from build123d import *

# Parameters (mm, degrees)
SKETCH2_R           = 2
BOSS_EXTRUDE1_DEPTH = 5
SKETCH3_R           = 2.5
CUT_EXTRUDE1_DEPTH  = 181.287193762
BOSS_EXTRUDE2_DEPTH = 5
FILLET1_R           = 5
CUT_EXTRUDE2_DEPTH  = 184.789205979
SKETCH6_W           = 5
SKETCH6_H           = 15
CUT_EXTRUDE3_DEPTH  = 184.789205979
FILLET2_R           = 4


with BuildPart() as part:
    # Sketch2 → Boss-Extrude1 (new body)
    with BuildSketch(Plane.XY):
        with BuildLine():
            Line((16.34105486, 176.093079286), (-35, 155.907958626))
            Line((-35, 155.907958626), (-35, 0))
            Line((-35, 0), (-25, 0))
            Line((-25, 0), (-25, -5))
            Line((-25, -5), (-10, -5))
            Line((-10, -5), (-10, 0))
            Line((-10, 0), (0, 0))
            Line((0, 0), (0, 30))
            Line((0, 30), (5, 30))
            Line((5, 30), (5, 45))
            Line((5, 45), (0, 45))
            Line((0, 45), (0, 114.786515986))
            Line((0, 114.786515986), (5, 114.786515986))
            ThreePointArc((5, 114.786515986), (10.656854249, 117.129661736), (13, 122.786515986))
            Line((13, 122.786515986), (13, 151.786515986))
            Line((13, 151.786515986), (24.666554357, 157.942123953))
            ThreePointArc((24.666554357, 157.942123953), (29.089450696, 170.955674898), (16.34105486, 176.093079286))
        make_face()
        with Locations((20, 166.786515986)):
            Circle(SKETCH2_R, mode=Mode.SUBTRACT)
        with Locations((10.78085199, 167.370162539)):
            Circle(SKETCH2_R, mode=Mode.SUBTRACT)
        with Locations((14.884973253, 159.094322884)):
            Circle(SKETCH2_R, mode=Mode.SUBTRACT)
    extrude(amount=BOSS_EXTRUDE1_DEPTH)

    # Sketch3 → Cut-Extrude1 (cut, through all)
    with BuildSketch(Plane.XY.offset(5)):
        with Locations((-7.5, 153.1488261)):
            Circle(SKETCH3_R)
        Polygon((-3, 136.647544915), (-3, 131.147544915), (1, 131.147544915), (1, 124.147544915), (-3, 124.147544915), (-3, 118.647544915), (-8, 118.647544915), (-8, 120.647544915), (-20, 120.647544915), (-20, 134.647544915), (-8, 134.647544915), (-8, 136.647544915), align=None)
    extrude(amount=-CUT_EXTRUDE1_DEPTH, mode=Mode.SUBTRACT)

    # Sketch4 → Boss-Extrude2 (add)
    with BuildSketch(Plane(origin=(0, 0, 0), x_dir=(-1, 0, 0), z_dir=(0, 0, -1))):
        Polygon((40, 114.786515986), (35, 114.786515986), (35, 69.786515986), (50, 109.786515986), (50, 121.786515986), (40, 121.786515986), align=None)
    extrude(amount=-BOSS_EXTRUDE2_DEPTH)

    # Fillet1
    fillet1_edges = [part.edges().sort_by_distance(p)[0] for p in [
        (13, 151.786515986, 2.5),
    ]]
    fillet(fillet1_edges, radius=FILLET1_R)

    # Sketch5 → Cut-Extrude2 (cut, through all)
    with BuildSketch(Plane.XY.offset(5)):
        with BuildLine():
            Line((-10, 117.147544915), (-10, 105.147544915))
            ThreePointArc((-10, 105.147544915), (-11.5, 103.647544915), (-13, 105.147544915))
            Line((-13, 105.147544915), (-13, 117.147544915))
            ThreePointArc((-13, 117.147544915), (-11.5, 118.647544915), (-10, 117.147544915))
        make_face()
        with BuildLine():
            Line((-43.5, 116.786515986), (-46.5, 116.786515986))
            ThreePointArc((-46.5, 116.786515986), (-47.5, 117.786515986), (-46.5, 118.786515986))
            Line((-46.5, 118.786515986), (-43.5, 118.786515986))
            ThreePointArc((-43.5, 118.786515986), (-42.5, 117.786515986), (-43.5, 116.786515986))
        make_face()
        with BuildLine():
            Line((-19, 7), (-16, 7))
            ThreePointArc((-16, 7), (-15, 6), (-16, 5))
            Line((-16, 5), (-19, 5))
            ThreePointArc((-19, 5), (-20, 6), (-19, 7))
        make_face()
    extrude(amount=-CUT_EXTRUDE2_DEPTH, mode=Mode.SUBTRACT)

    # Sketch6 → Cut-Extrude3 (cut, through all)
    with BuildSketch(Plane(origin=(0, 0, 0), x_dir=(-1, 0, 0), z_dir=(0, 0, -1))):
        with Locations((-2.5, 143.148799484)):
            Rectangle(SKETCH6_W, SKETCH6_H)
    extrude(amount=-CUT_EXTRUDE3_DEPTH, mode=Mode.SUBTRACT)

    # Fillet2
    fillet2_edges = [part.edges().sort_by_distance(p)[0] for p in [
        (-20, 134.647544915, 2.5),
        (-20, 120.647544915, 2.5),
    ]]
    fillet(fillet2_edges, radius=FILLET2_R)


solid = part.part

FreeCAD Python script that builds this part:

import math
import FreeCAD as App
import Part
import Sketcher

V = App.Vector


def edges_at(feature, points):
    """Names of the edges that pass closest to the given points."""
    edges = feature.Shape.Edges
    near = lambda p: min(range(len(edges)), key=lambda i: edges[i].distToShape(Part.Vertex(*p))[0])
    return sorted({f"Edge{near(p) + 1}" for p in points})


def add_polygon(sketch, points):
    """Adds a closed chain of lines whose ends are joined by coincident constraints."""
    first, n = sketch.GeometryCount, len(points)
    for a, b in zip(points, points[1:] + points[:1]):
        sketch.addGeometry(Part.LineSegment(App.Vector(*a, 0), App.Vector(*b, 0)), False)
    for i in range(n):
        sketch.addConstraint(Sketcher.Constraint("Coincident", first + i, 2, first + (i + 1) % n, 1))

doc = App.newDocument("Part")
body = doc.addObject("PartDesign::Body", "Body")

# Sketch on XY plane
sketch1 = body.newObject("Sketcher::SketchObject", "Sketch")
sketch1.AttachmentSupport = (doc.getObject("XY_Plane"), [""])
sketch1.MapMode = "FlatFace"
sketch1.addGeometry([
    Part.LineSegment(V(16.3, 176.1, 0), V(-35, 155.9, 0)),  # 0
    Part.LineSegment(V(-35, 155.9, 0), V(-35, 0, 0)),  # 1
    Part.LineSegment(V(-35, 0, 0), V(-25, 0, 0)),  # 2
    Part.LineSegment(V(-25, 0, 0), V(-25, -5, 0)),  # 3
    Part.LineSegment(V(-25, -5, 0), V(-10, -5, 0)),  # 4
    Part.LineSegment(V(-10, -5, 0), V(-10, 0, 0)),  # 5
    Part.LineSegment(V(-10, 0, 0), V(0, 0, 0)),  # 6
    Part.LineSegment(V(0, 0, 0), V(0, 30, 0)),  # 7
    Part.LineSegment(V(0, 30, 0), V(5, 30, 0)),  # 8
    Part.LineSegment(V(5, 30, 0), V(5, 45, 0)),  # 9
    Part.LineSegment(V(5, 45, 0), V(0, 45, 0)),  # 10
    Part.LineSegment(V(0, 45, 0), V(0, 114.8, 0)),  # 11
    Part.LineSegment(V(0, 114.8, 0), V(5, 114.8, 0)),  # 12
    Part.ArcOfCircle(Part.Circle(V(5, 122.8, 0), V(0, 0, 1), 8), math.radians(-90), math.radians(0)),  # 13
    Part.LineSegment(V(13, 122.8, 0), V(13, 151.8, 0)),  # 14
    Part.LineSegment(V(13, 151.8, 0), V(24.7, 157.9, 0)),  # 15
    Part.ArcOfCircle(Part.Circle(V(20, 166.8, 0), V(0, 0, 1), 10), math.radians(-62), math.radians(111)),  # 16
    Part.Circle(V(14.9, 159.1, 0), V(0, 0, 1), 2),  # 17
    Part.Circle(V(10.8, 167.4, 0), V(0, 0, 1), 2),  # 18
    Part.Circle(V(20, 166.8, 0), V(0, 0, 1), 2),  # 19
], False)
sketch1.addConstraint([
    Sketcher.Constraint("Coincident", 0, 2, 1, 1),
    Sketcher.Constraint("Coincident", 1, 2, 2, 1),
    Sketcher.Constraint("Coincident", 2, 2, 3, 1),
    Sketcher.Constraint("Coincident", 3, 2, 4, 1),
    Sketcher.Constraint("Coincident", 4, 2, 5, 1),
    Sketcher.Constraint("Coincident", 5, 2, 6, 1),
    Sketcher.Constraint("Coincident", 6, 2, 7, 1),
    Sketcher.Constraint("Coincident", 7, 2, 8, 1),
    Sketcher.Constraint("Coincident", 8, 2, 9, 1),
    Sketcher.Constraint("Coincident", 9, 2, 10, 1),
    Sketcher.Constraint("Coincident", 10, 2, 11, 1),
    Sketcher.Constraint("Coincident", 11, 2, 12, 1),
    Sketcher.Constraint("Tangent", 12, 2, 13, 1),
    Sketcher.Constraint("Tangent", 13, 2, 14, 1),
    Sketcher.Constraint("Coincident", 14, 2, 15, 1),
    Sketcher.Constraint("Tangent", 15, 2, 16, 1),
    Sketcher.Constraint("Tangent", 16, 2, 0, 1),
    Sketcher.Constraint("Vertical", 1),
    Sketcher.Constraint("Horizontal", 2),
    Sketcher.Constraint("Vertical", 3),
    Sketcher.Constraint("Horizontal", 4),
    Sketcher.Constraint("Vertical", 5),
    Sketcher.Constraint("Horizontal", 6),
    Sketcher.Constraint("Vertical", 7),
    Sketcher.Constraint("Horizontal", 8),
    Sketcher.Constraint("Vertical", 9),
    Sketcher.Constraint("Horizontal", 10),
    Sketcher.Constraint("Vertical", 11),
    Sketcher.Constraint("Horizontal", 12),
    Sketcher.Constraint("Vertical", 14),
    Sketcher.Constraint("Coincident", 6, 2, -1, 1),
    Sketcher.Constraint("Coincident", 19, 3, 16, 3),
    Sketcher.Constraint("Equal", 17, 18),
    Sketcher.Constraint("Equal", 18, 19),
    Sketcher.Constraint("PointOnObject", 1, 2, -1),
    Sketcher.Constraint("PointOnObject", 10, 2, -2),
    Sketcher.Constraint("Vertical", 13, 3, 8, 2),
    Sketcher.Constraint("Equal", 2, 6),
    Sketcher.Constraint("Equal", 12, 3),
    Sketcher.Constraint("Equal", 4, 9),
    Sketcher.Constraint("Diameter", 17, 4.0),
    Sketcher.Constraint("Radius", 13, 8.0),
    Sketcher.Constraint("Radius", 16, 10.0),
    Sketcher.Constraint("DistanceX", 2, 1, 2, 2, 10.0),
    Sketcher.Constraint("DistanceX", 4, 1, 4, 2, 15.0),
    Sketcher.Constraint("DistanceX", 8, 1, 8, 2, 5.0),
    Sketcher.Constraint("DistanceY", 7, 1, 7, 2, 30.0),
    Sketcher.Constraint("DistanceY", 14, 1, 14, 2, 29.0),
    Sketcher.Constraint("DistanceX", -1, 1, 16, 3, 20.0),
    Sketcher.Constraint("DistanceY", 13, 3, 16, 3, 44.0),
    Sketcher.Constraint("DistanceY", 1, 2, 1, 1, 155.907959),
    Sketcher.Constraint("DistanceY", 15, 2, 17, 3, 1.152199),
    Sketcher.Constraint("DistanceX", 16, 2, 15, 2, 8.325499),
    Sketcher.Constraint("DistanceX", -1, 1, 18, 3, 10.780852),
    Sketcher.Constraint("DistanceX", 18, 3, 17, 3, 4.104121),
    Sketcher.Constraint("DistanceY", 17, 3, 18, 3, 8.27584),
])
pad1 = body.newObject("PartDesign::Pad", "Pad")
pad1.Profile = sketch1
pad1.Length = 5

# Sketch on XY plane
sketch2 = body.newObject("Sketcher::SketchObject", "Sketch001")
sketch2.AttachmentSupport = (doc.getObject("XY_Plane"), [""])
sketch2.MapMode = "FlatFace"
sketch2.AttachmentOffset = App.Placement(V(0, 0, 5), App.Rotation())
sketch2.addGeometry(Part.Circle(V(-7.5, 153.1, 0), V(0, 0, 1), 2.5), False)  # 0
add_polygon(sketch2, [(-3, 131.1), (-3, 136.6), (-8, 136.6), (-8, 134.6), (-20, 134.6), (-20, 120.6), (-8, 120.6), (-8, 118.6), (-3, 118.6), (-3, 124.1), (1, 124.1), (1, 131.1)])  # lines 1-12
sketch2.addConstraint([
    Sketcher.Constraint("Vertical", 1),
    Sketcher.Constraint("Horizontal", 2),
    Sketcher.Constraint("Vertical", 3),
    Sketcher.Constraint("Horizontal", 4),
    Sketcher.Constraint("Vertical", 5),
    Sketcher.Constraint("Horizontal", 6),
    Sketcher.Constraint("Vertical", 7),
    Sketcher.Constraint("Horizontal", 8),
    Sketcher.Constraint("Vertical", 9),
    Sketcher.Constraint("Horizontal", 10),
    Sketcher.Constraint("Vertical", 11),
    Sketcher.Constraint("Horizontal", 12),
    Sketcher.Constraint("Vertical", 3, 2, 6, 2),
    Sketcher.Constraint("Vertical", 1, 2, 8, 2),
    Sketcher.Constraint("Equal", 3, 7),
    Sketcher.Constraint("Equal", 1, 9),
    Sketcher.Constraint("Diameter", 0, 5.0),
    Sketcher.Constraint("DistanceX", 2, 2, 2, 1, 5.0),
    Sketcher.Constraint("DistanceX", 4, 2, 4, 1, 12.0),
    Sketcher.Constraint("DistanceX", 10, 1, 10, 2, 4.0),
    Sketcher.Constraint("DistanceY", 3, 2, 3, 1, 2.0),
    Sketcher.Constraint("DistanceY", 5, 2, 5, 1, 14.0),
    Sketcher.Constraint("DistanceY", 11, 1, 11, 2, 7.0),
    Sketcher.Constraint("DistanceX", 1, 2, -1, 1, 3.0),
    Sketcher.Constraint("DistanceX", 0, 3, -1, 1, 7.5),
    Sketcher.Constraint("DistanceY", 1, 2, 0, 3, 16.501281),
    Sketcher.Constraint("DistanceY", -1, 1, 0, 3, 153.148826),
])
pocket1 = body.newObject("PartDesign::Pocket", "Pocket")
pocket1.Profile = sketch2
pocket1.Type = "ThroughAll"

# Sketch on XY plane
sketch3 = body.newObject("Sketcher::SketchObject", "Sketch002")
sketch3.AttachmentSupport = (doc.getObject("XY_Plane"), [""])
sketch3.MapMode = "FlatFace"
add_polygon(sketch3, [(-40, 115), (-35, 115), (-35, 70), (-50, 110), (-50, 122), (-40, 122)])  # lines 0-5
sketch3.addConstraint([
    Sketcher.Constraint("Horizontal", 0),
    Sketcher.Constraint("Vertical", 1),
    Sketcher.Constraint("Vertical", 3),
    Sketcher.Constraint("Horizontal", 4),
    Sketcher.Constraint("Vertical", 5),
    Sketcher.Constraint("DistanceX", 0, 1, 0, 2, 5.0),
    Sketcher.Constraint("DistanceX", 4, 1, 4, 2, 10.0),
    Sketcher.Constraint("DistanceY", 1, 2, 1, 1, 45.0),
    Sketcher.Constraint("DistanceY", 3, 1, 3, 2, 12.0),
    Sketcher.Constraint("DistanceY", 5, 2, 5, 1, 7.0),
    Sketcher.Constraint("DistanceX", 0, 2, -1, 1, 35.0),
    Sketcher.Constraint("DistanceY", -1, 1, 0, 2, 114.786516),
])
pad2 = body.newObject("PartDesign::Pad", "Pad001")
pad2.Profile = sketch3
pad2.Length = 5
doc.recompute()

fillet = body.newObject("PartDesign::Fillet", "Fillet")
fillet.Base = (pad2, edges_at(pad2, [(13, 151.787, 2.5)]))
fillet.Radius = 5

# Sketch on XY plane
sketch4 = body.newObject("Sketcher::SketchObject", "Sketch003")
sketch4.AttachmentSupport = (doc.getObject("XY_Plane"), [""])
sketch4.MapMode = "FlatFace"
sketch4.AttachmentOffset = App.Placement(V(0, 0, 5), App.Rotation())
sketch4.addGeometry([
    Part.LineSegment(V(-10, 105.1, 0), V(-10, 117.1, 0)),  # 0
    Part.ArcOfCircle(Part.Circle(V(-11.5, 117.1, 0), V(0, 0, 1), 1.5), math.radians(0), math.radians(180)),  # 1
    Part.LineSegment(V(-13, 117.1, 0), V(-13, 105.1, 0)),  # 2
    Part.ArcOfCircle(Part.Circle(V(-11.5, 105.1, 0), V(0, 0, 1), 1.5), math.radians(180), math.radians(360)),  # 3
    Part.LineSegment(V(-46.5, 116.8, 0), V(-43.5, 116.8, 0)),  # 4
    Part.ArcOfCircle(Part.Circle(V(-43.5, 117.8, 0), V(0, 0, 1), 1), math.radians(-90), math.radians(90)),  # 5
    Part.LineSegment(V(-43.5, 118.8, 0), V(-46.5, 118.8, 0)),  # 6
    Part.ArcOfCircle(Part.Circle(V(-46.5, 117.8, 0), V(0, 0, 1), 1), math.radians(90), math.radians(270)),  # 7
    Part.LineSegment(V(-16, 7, 0), V(-19, 7, 0)),  # 8
    Part.ArcOfCircle(Part.Circle(V(-19, 6, 0), V(0, 0, 1), 1), math.radians(90), math.radians(270)),  # 9
    Part.LineSegment(V(-19, 5, 0), V(-16, 5, 0)),  # 10
    Part.ArcOfCircle(Part.Circle(V(-16, 6, 0), V(0, 0, 1), 1), math.radians(-90), math.radians(90)),  # 11
], False)
sketch4.addConstraint([
    Sketcher.Constraint("Tangent", 0, 2, 1, 1),
    Sketcher.Constraint("Tangent", 1, 2, 2, 1),
    Sketcher.Constraint("Tangent", 2, 2, 3, 1),
    Sketcher.Constraint("Tangent", 3, 2, 0, 1),
    Sketcher.Constraint("Tangent", 4, 2, 5, 1),
    Sketcher.Constraint("Tangent", 5, 2, 6, 1),
    Sketcher.Constraint("Tangent", 6, 2, 7, 1),
    Sketcher.Constraint("Tangent", 7, 2, 4, 1),
    Sketcher.Constraint("Tangent", 8, 2, 9, 1),
    Sketcher.Constraint("Tangent", 9, 2, 10, 1),
    Sketcher.Constraint("Tangent", 10, 2, 11, 1),
    Sketcher.Constraint("Tangent", 11, 2, 8, 1),
    Sketcher.Constraint("Vertical", 0),
    Sketcher.Constraint("Vertical", 2),
    Sketcher.Constraint("Horizontal", 4),
    Sketcher.Constraint("Horizontal", 6),
    Sketcher.Constraint("Horizontal", 8),
    Sketcher.Constraint("Horizontal", 10),
    Sketcher.Constraint("Equal", 7, 9),
    Sketcher.Constraint("Equal", 6, 8),
    Sketcher.Constraint("Radius", 5, 1.0),
    Sketcher.Constraint("Radius", 1, 1.5),
    Sketcher.Constraint("DistanceX", 4, 1, 4, 2, 3.0),
    Sketcher.Constraint("DistanceY", 0, 1, 0, 2, 12.0),
    Sketcher.Constraint("DistanceX", 9, 3, -1, 1, 19.0),
    Sketcher.Constraint("DistanceY", -1, 1, 9, 3, 6.0),
    Sketcher.Constraint("DistanceX", 0, 2, -1, 1, 10.0),
    Sketcher.Constraint("DistanceX", 5, 3, 1, 3, 32.0),
    Sketcher.Constraint("DistanceY", 1, 3, 5, 3, 0.638971),
    Sketcher.Constraint("DistanceY", -1, 1, 1, 3, 117.147545),
])
pocket2 = body.newObject("PartDesign::Pocket", "Pocket001")
pocket2.Profile = sketch4
pocket2.Type = "ThroughAll"

# Sketch on XY plane
sketch5 = body.newObject("Sketcher::SketchObject", "Sketch004")
sketch5.AttachmentSupport = (doc.getObject("XY_Plane"), [""])
sketch5.MapMode = "FlatFace"
add_polygon(sketch5, [(5, 151), (5, 136), (0, 136), (0, 151)])  # lines 0-3
sketch5.addConstraint([
    Sketcher.Constraint("Vertical", 0),
    Sketcher.Constraint("Horizontal", 1),
    Sketcher.Constraint("Vertical", 2),
    Sketcher.Constraint("Horizontal", 3),
    Sketcher.Constraint("PointOnObject", 1, 2, -2),
    Sketcher.Constraint("DistanceX", 1, 2, 1, 1, 5.0),
    Sketcher.Constraint("DistanceY", 0, 2, 0, 1, 15.0),
    Sketcher.Constraint("DistanceY", -1, 1, 0, 2, 135.648799),
])
pocket3 = body.newObject("PartDesign::Pocket", "Pocket002")
pocket3.Profile = sketch5
pocket3.Type = "ThroughAll"
pocket3.Reversed = True
doc.recompute()

fillet2 = body.newObject("PartDesign::Fillet", "Fillet001")
fillet2.Base = (pocket3, edges_at(pocket3, [(-20, 134.648, 2.5), (-20, 120.648, 2.5)]))
fillet2.Radius = 4

doc.recompute()
